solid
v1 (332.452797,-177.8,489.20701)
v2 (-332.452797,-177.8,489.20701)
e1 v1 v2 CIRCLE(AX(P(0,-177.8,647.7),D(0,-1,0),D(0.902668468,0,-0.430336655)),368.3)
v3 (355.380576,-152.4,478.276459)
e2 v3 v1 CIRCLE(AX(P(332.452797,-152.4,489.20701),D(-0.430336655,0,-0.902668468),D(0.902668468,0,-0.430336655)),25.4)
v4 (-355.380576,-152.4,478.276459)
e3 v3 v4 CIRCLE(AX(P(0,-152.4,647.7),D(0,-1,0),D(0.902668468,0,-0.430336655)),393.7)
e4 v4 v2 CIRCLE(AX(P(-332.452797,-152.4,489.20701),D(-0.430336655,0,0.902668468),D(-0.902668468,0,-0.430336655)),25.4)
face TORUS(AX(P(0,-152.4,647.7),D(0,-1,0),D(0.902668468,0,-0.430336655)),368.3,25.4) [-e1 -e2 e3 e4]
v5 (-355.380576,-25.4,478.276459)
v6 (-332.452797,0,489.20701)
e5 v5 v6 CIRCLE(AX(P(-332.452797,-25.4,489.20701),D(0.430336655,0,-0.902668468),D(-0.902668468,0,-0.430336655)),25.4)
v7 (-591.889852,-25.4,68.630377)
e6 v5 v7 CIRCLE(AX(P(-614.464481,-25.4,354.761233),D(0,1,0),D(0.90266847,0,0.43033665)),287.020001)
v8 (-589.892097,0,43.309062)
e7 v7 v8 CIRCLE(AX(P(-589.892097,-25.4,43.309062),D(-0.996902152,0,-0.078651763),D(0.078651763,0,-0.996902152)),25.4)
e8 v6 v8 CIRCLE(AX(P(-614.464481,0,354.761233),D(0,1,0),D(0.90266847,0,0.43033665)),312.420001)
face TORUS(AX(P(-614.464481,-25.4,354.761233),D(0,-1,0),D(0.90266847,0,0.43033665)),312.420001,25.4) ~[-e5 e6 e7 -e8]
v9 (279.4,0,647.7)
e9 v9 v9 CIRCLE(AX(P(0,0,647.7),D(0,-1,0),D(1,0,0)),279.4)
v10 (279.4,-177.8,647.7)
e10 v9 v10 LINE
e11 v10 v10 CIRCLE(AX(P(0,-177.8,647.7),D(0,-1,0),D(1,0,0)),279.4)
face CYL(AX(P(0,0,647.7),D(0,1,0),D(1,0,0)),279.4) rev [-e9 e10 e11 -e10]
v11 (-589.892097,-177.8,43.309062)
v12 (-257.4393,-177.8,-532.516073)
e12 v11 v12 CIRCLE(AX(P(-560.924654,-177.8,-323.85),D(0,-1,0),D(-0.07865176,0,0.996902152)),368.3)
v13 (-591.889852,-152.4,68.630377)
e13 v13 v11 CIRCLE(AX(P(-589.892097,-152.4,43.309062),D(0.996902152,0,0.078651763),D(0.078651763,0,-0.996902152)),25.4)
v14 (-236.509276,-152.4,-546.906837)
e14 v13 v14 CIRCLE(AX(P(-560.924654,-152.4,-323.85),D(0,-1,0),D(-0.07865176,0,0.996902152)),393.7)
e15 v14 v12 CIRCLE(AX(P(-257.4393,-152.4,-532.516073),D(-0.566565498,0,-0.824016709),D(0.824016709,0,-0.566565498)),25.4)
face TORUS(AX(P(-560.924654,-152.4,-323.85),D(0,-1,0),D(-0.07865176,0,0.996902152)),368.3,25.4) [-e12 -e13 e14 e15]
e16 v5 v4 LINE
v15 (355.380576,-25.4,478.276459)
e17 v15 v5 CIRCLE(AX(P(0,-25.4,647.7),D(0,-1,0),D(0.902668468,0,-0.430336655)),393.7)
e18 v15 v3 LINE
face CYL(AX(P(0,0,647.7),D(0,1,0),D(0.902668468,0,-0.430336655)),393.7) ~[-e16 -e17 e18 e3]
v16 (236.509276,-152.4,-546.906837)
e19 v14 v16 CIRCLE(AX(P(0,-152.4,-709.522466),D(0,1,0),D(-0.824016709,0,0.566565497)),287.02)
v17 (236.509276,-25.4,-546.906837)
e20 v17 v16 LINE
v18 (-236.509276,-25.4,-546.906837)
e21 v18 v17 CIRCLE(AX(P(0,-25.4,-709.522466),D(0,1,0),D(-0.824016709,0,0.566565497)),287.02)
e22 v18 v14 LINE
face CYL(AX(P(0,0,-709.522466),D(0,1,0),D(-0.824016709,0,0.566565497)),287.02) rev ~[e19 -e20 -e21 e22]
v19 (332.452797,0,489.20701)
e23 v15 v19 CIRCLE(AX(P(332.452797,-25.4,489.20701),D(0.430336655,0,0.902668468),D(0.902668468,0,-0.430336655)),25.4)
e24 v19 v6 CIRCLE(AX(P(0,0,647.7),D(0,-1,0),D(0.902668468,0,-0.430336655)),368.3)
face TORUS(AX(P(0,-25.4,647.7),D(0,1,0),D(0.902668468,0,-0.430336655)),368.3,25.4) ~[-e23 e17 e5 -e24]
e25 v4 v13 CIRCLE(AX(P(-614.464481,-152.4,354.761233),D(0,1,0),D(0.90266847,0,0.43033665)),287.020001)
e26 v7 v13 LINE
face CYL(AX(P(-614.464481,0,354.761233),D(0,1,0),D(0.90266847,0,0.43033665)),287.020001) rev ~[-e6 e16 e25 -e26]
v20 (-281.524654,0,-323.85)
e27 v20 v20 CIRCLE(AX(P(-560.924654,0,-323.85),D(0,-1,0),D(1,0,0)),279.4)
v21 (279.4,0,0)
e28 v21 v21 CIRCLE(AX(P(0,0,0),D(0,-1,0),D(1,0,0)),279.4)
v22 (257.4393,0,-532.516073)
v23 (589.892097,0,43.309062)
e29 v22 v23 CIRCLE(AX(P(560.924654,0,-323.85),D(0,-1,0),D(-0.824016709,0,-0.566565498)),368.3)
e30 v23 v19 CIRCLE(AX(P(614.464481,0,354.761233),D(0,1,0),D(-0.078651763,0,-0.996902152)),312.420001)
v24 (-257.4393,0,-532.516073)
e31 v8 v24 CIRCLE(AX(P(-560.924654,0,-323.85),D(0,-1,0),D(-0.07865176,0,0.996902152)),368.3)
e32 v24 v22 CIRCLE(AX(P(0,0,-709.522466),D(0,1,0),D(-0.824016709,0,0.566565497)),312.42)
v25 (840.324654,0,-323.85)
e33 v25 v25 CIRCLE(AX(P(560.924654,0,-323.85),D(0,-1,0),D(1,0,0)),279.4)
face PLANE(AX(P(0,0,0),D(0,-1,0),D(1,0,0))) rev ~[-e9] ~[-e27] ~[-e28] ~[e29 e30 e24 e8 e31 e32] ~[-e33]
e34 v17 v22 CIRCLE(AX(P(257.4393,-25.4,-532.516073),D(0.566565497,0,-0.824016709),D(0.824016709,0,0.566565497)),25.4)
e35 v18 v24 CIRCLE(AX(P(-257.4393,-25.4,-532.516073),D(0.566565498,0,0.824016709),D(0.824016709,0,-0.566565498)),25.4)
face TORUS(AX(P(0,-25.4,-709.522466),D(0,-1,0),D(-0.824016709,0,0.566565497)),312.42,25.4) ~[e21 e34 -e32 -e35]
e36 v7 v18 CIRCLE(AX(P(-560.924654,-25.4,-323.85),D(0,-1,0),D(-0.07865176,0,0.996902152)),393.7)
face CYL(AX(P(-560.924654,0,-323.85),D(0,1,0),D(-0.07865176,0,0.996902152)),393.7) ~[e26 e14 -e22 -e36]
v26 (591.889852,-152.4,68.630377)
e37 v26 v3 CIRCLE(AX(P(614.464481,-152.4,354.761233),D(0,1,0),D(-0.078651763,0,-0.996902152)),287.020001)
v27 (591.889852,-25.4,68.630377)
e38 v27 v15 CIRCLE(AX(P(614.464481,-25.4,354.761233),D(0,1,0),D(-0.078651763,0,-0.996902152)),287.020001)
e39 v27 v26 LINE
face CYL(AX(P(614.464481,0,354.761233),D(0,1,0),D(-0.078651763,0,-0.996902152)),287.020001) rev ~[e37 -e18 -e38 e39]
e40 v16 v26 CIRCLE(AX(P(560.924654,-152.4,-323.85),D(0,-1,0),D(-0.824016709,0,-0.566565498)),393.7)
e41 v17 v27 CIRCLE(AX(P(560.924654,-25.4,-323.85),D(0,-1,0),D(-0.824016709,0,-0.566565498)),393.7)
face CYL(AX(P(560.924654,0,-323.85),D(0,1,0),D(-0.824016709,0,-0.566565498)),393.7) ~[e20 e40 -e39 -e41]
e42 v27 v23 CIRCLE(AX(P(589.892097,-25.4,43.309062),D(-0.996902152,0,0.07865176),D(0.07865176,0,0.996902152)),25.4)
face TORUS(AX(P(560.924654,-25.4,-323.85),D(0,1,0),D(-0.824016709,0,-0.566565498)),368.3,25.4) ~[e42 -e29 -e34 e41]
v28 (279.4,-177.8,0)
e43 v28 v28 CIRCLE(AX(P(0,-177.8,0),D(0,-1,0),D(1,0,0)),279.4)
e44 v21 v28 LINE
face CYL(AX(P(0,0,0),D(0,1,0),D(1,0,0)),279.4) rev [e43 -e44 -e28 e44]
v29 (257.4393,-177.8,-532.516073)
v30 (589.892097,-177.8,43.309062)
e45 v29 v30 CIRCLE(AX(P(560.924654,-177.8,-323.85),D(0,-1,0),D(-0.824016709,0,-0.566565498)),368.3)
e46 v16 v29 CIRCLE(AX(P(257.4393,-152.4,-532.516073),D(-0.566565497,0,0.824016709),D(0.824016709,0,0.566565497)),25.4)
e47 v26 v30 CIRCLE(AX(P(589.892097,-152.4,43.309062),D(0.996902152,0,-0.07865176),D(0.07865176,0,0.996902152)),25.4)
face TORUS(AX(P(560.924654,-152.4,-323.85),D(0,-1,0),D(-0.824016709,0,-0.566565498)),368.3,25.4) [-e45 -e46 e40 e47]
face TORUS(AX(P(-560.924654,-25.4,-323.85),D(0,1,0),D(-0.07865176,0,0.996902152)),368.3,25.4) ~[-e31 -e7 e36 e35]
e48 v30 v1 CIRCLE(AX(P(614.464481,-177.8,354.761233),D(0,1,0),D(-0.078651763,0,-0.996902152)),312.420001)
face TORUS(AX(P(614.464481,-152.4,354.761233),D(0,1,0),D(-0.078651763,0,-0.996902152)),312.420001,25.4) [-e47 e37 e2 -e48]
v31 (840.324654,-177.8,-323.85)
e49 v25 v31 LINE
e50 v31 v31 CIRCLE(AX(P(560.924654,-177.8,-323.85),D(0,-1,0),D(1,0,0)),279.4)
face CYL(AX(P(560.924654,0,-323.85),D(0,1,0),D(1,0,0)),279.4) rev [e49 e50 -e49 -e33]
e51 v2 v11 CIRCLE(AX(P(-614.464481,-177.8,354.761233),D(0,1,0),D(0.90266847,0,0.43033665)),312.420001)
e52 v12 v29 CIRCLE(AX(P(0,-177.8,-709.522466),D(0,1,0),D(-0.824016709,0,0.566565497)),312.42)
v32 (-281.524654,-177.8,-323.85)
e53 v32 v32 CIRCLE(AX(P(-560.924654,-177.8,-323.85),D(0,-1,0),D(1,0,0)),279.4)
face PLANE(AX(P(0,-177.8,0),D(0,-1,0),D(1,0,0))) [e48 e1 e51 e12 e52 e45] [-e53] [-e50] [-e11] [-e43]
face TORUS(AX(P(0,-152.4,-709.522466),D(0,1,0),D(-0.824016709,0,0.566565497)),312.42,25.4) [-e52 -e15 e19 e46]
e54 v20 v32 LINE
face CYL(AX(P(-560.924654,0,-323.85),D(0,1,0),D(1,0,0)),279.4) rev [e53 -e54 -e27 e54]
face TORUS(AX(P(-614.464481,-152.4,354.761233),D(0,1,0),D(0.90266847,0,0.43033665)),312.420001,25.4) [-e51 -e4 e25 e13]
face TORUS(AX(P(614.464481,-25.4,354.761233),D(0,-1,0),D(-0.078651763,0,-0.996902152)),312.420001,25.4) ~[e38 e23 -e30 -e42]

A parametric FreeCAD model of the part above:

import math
import FreeCAD as App
import Part
import Sketcher
Q = App.Units.Quantity


def edges_at(feature, points):
    """Names of the edges that pass closest to the given points."""
    edges = feature.Shape.Edges
    near = lambda p: min(range(len(edges)), key=lambda i: edges[i].distToShape(Part.Vertex(*p))[0])
    return sorted({f"Edge{near(p) + 1}" for p in points})

doc = App.newDocument("Part")
body = doc.addObject("PartDesign::Body", "Body")

# Sketch on XZ plane
sketch1 = body.newObject("Sketcher::SketchObject", "Sketch")
sketch1.AttachmentSupport = (doc.getObject("XZ_Plane"), [""])
sketch1.MapMode = "FlatFace"
sketch1.addGeometry(Part.ArcOfCircle(Part.Circle(App.Vector(614, 355, 0), App.Vector(0, 0, 1), 287), math.radians(155), math.radians(265)), False)
sketch1.addGeometry(Part.ArcOfCircle(Part.Circle(App.Vector(0, 648, 0), App.Vector(0, 0, 1), 394), math.radians(-25), math.radians(205)), False)
sketch1.addGeometry(Part.ArcOfCircle(Part.Circle(App.Vector(-614, 355, 0), App.Vector(0, 0, 1), 287), math.radians(-85), math.radians(25)), False)
sketch1.addGeometry(Part.ArcOfCircle(Part.Circle(App.Vector(-561, -324, 0), App.Vector(0, 0, 1), 394), math.radians(95), math.radians(325)), False)
sketch1.addGeometry(Part.ArcOfCircle(Part.Circle(App.Vector(0, -710, 0), App.Vector(0, 0, 1), 287), math.radians(35), math.radians(145)), False)
sketch1.addGeometry(Part.ArcOfCircle(Part.Circle(App.Vector(561, -324, 0), App.Vector(0, 0, 1), 394), math.radians(-145), math.radians(85)), False)
sketch1.addGeometry(Part.Circle(App.Vector(-561, -324, 0), App.Vector(0, 0, 1), 279), False)
sketch1.addGeometry(Part.Circle(App.Vector(561, -324, 0), App.Vector(0, 0, 1), 279), False)
sketch1.addGeometry(Part.Circle(App.Vector(0, 0, 0), App.Vector(0, 0, 1), 279), False)
sketch1.addGeometry(Part.Circle(App.Vector(0, 648, 0), App.Vector(0, 0, 1), 279), False)
sketch1.addConstraint(Sketcher.Constraint("Tangent", 0, 1, 1, 1))
sketch1.addConstraint(Sketcher.Constraint("Tangent", 1, 2, 2, 2))
sketch1.addConstraint(Sketcher.Constraint("Tangent", 2, 1, 3, 1))
sketch1.addConstraint(Sketcher.Constraint("Tangent", 3, 2, 4, 2))
sketch1.addConstraint(Sketcher.Constraint("Tangent", 4, 1, 5, 1))
sketch1.addConstraint(Sketcher.Constraint("Tangent", 5, 2, 0, 2))
sketch1.addConstraint(Sketcher.Constraint("Coincident", 8, 3, -1, 1))
sketch1.addConstraint(Sketcher.Constraint("Coincident", 6, 3, 3, 3))
sketch1.addConstraint(Sketcher.Constraint("Coincident", 7, 3, 5, 3))
sketch1.addConstraint(Sketcher.Constraint("Coincident", 9, 3, 1, 3))
sketch1.addConstraint(Sketcher.Constraint("Equal", 0, 2))
sketch1.addConstraint(Sketcher.Constraint("Equal", 1, 3))
sketch1.addConstraint(Sketcher.Constraint("Equal", 2, 4))
sketch1.addConstraint(Sketcher.Constraint("Equal", 3, 5))
sketch1.addConstraint(Sketcher.Constraint("Equal", 6, 7))
sketch1.addConstraint(Sketcher.Constraint("Equal", 7, 8))
sketch1.addConstraint(Sketcher.Constraint("Equal", 8, 9))
sketch1.addConstraint(Sketcher.Constraint("Symmetric", 0, 3, 2, 3, -2))
sketch1.addConstraint(Sketcher.Constraint("PointOnObject", 4, 3, -2))
sketch1.addConstraint(Sketcher.Constraint("Diameter", 6, Q("22 in")))
sketch1.addConstraint(Sketcher.Constraint("Radius", 0, Q("11.3 in")))
sketch1.addConstraint(Sketcher.Constraint("Radius", 1, Q("15.5 in")))
sketch1.addConstraint(Sketcher.Constraint("DistanceY", -1, 1, 1, 3, Q("25.5 in")))
sketch1.addConstraint(Sketcher.Constraint("DistanceY", 3, 3, -1, 1, Q("12.75 in")))
sketch1.addConstraint(Sketcher.Constraint("DistanceY", 4, 3, 0, 3, Q("1064.283699 mm")))
pad1 = body.newObject("PartDesign::Pad", "Pad")
pad1.Profile = sketch1
pad1.Length = Q("7 in")
doc.recompute()

fillet = body.newObject("PartDesign::Fillet", "Fillet")
fillet.Base = (pad1, edges_at(pad1, [(0, -177.8, 1041.4), (0, 0, 1041.4)]))
fillet.Radius = Q("1 in")

doc.recompute()
